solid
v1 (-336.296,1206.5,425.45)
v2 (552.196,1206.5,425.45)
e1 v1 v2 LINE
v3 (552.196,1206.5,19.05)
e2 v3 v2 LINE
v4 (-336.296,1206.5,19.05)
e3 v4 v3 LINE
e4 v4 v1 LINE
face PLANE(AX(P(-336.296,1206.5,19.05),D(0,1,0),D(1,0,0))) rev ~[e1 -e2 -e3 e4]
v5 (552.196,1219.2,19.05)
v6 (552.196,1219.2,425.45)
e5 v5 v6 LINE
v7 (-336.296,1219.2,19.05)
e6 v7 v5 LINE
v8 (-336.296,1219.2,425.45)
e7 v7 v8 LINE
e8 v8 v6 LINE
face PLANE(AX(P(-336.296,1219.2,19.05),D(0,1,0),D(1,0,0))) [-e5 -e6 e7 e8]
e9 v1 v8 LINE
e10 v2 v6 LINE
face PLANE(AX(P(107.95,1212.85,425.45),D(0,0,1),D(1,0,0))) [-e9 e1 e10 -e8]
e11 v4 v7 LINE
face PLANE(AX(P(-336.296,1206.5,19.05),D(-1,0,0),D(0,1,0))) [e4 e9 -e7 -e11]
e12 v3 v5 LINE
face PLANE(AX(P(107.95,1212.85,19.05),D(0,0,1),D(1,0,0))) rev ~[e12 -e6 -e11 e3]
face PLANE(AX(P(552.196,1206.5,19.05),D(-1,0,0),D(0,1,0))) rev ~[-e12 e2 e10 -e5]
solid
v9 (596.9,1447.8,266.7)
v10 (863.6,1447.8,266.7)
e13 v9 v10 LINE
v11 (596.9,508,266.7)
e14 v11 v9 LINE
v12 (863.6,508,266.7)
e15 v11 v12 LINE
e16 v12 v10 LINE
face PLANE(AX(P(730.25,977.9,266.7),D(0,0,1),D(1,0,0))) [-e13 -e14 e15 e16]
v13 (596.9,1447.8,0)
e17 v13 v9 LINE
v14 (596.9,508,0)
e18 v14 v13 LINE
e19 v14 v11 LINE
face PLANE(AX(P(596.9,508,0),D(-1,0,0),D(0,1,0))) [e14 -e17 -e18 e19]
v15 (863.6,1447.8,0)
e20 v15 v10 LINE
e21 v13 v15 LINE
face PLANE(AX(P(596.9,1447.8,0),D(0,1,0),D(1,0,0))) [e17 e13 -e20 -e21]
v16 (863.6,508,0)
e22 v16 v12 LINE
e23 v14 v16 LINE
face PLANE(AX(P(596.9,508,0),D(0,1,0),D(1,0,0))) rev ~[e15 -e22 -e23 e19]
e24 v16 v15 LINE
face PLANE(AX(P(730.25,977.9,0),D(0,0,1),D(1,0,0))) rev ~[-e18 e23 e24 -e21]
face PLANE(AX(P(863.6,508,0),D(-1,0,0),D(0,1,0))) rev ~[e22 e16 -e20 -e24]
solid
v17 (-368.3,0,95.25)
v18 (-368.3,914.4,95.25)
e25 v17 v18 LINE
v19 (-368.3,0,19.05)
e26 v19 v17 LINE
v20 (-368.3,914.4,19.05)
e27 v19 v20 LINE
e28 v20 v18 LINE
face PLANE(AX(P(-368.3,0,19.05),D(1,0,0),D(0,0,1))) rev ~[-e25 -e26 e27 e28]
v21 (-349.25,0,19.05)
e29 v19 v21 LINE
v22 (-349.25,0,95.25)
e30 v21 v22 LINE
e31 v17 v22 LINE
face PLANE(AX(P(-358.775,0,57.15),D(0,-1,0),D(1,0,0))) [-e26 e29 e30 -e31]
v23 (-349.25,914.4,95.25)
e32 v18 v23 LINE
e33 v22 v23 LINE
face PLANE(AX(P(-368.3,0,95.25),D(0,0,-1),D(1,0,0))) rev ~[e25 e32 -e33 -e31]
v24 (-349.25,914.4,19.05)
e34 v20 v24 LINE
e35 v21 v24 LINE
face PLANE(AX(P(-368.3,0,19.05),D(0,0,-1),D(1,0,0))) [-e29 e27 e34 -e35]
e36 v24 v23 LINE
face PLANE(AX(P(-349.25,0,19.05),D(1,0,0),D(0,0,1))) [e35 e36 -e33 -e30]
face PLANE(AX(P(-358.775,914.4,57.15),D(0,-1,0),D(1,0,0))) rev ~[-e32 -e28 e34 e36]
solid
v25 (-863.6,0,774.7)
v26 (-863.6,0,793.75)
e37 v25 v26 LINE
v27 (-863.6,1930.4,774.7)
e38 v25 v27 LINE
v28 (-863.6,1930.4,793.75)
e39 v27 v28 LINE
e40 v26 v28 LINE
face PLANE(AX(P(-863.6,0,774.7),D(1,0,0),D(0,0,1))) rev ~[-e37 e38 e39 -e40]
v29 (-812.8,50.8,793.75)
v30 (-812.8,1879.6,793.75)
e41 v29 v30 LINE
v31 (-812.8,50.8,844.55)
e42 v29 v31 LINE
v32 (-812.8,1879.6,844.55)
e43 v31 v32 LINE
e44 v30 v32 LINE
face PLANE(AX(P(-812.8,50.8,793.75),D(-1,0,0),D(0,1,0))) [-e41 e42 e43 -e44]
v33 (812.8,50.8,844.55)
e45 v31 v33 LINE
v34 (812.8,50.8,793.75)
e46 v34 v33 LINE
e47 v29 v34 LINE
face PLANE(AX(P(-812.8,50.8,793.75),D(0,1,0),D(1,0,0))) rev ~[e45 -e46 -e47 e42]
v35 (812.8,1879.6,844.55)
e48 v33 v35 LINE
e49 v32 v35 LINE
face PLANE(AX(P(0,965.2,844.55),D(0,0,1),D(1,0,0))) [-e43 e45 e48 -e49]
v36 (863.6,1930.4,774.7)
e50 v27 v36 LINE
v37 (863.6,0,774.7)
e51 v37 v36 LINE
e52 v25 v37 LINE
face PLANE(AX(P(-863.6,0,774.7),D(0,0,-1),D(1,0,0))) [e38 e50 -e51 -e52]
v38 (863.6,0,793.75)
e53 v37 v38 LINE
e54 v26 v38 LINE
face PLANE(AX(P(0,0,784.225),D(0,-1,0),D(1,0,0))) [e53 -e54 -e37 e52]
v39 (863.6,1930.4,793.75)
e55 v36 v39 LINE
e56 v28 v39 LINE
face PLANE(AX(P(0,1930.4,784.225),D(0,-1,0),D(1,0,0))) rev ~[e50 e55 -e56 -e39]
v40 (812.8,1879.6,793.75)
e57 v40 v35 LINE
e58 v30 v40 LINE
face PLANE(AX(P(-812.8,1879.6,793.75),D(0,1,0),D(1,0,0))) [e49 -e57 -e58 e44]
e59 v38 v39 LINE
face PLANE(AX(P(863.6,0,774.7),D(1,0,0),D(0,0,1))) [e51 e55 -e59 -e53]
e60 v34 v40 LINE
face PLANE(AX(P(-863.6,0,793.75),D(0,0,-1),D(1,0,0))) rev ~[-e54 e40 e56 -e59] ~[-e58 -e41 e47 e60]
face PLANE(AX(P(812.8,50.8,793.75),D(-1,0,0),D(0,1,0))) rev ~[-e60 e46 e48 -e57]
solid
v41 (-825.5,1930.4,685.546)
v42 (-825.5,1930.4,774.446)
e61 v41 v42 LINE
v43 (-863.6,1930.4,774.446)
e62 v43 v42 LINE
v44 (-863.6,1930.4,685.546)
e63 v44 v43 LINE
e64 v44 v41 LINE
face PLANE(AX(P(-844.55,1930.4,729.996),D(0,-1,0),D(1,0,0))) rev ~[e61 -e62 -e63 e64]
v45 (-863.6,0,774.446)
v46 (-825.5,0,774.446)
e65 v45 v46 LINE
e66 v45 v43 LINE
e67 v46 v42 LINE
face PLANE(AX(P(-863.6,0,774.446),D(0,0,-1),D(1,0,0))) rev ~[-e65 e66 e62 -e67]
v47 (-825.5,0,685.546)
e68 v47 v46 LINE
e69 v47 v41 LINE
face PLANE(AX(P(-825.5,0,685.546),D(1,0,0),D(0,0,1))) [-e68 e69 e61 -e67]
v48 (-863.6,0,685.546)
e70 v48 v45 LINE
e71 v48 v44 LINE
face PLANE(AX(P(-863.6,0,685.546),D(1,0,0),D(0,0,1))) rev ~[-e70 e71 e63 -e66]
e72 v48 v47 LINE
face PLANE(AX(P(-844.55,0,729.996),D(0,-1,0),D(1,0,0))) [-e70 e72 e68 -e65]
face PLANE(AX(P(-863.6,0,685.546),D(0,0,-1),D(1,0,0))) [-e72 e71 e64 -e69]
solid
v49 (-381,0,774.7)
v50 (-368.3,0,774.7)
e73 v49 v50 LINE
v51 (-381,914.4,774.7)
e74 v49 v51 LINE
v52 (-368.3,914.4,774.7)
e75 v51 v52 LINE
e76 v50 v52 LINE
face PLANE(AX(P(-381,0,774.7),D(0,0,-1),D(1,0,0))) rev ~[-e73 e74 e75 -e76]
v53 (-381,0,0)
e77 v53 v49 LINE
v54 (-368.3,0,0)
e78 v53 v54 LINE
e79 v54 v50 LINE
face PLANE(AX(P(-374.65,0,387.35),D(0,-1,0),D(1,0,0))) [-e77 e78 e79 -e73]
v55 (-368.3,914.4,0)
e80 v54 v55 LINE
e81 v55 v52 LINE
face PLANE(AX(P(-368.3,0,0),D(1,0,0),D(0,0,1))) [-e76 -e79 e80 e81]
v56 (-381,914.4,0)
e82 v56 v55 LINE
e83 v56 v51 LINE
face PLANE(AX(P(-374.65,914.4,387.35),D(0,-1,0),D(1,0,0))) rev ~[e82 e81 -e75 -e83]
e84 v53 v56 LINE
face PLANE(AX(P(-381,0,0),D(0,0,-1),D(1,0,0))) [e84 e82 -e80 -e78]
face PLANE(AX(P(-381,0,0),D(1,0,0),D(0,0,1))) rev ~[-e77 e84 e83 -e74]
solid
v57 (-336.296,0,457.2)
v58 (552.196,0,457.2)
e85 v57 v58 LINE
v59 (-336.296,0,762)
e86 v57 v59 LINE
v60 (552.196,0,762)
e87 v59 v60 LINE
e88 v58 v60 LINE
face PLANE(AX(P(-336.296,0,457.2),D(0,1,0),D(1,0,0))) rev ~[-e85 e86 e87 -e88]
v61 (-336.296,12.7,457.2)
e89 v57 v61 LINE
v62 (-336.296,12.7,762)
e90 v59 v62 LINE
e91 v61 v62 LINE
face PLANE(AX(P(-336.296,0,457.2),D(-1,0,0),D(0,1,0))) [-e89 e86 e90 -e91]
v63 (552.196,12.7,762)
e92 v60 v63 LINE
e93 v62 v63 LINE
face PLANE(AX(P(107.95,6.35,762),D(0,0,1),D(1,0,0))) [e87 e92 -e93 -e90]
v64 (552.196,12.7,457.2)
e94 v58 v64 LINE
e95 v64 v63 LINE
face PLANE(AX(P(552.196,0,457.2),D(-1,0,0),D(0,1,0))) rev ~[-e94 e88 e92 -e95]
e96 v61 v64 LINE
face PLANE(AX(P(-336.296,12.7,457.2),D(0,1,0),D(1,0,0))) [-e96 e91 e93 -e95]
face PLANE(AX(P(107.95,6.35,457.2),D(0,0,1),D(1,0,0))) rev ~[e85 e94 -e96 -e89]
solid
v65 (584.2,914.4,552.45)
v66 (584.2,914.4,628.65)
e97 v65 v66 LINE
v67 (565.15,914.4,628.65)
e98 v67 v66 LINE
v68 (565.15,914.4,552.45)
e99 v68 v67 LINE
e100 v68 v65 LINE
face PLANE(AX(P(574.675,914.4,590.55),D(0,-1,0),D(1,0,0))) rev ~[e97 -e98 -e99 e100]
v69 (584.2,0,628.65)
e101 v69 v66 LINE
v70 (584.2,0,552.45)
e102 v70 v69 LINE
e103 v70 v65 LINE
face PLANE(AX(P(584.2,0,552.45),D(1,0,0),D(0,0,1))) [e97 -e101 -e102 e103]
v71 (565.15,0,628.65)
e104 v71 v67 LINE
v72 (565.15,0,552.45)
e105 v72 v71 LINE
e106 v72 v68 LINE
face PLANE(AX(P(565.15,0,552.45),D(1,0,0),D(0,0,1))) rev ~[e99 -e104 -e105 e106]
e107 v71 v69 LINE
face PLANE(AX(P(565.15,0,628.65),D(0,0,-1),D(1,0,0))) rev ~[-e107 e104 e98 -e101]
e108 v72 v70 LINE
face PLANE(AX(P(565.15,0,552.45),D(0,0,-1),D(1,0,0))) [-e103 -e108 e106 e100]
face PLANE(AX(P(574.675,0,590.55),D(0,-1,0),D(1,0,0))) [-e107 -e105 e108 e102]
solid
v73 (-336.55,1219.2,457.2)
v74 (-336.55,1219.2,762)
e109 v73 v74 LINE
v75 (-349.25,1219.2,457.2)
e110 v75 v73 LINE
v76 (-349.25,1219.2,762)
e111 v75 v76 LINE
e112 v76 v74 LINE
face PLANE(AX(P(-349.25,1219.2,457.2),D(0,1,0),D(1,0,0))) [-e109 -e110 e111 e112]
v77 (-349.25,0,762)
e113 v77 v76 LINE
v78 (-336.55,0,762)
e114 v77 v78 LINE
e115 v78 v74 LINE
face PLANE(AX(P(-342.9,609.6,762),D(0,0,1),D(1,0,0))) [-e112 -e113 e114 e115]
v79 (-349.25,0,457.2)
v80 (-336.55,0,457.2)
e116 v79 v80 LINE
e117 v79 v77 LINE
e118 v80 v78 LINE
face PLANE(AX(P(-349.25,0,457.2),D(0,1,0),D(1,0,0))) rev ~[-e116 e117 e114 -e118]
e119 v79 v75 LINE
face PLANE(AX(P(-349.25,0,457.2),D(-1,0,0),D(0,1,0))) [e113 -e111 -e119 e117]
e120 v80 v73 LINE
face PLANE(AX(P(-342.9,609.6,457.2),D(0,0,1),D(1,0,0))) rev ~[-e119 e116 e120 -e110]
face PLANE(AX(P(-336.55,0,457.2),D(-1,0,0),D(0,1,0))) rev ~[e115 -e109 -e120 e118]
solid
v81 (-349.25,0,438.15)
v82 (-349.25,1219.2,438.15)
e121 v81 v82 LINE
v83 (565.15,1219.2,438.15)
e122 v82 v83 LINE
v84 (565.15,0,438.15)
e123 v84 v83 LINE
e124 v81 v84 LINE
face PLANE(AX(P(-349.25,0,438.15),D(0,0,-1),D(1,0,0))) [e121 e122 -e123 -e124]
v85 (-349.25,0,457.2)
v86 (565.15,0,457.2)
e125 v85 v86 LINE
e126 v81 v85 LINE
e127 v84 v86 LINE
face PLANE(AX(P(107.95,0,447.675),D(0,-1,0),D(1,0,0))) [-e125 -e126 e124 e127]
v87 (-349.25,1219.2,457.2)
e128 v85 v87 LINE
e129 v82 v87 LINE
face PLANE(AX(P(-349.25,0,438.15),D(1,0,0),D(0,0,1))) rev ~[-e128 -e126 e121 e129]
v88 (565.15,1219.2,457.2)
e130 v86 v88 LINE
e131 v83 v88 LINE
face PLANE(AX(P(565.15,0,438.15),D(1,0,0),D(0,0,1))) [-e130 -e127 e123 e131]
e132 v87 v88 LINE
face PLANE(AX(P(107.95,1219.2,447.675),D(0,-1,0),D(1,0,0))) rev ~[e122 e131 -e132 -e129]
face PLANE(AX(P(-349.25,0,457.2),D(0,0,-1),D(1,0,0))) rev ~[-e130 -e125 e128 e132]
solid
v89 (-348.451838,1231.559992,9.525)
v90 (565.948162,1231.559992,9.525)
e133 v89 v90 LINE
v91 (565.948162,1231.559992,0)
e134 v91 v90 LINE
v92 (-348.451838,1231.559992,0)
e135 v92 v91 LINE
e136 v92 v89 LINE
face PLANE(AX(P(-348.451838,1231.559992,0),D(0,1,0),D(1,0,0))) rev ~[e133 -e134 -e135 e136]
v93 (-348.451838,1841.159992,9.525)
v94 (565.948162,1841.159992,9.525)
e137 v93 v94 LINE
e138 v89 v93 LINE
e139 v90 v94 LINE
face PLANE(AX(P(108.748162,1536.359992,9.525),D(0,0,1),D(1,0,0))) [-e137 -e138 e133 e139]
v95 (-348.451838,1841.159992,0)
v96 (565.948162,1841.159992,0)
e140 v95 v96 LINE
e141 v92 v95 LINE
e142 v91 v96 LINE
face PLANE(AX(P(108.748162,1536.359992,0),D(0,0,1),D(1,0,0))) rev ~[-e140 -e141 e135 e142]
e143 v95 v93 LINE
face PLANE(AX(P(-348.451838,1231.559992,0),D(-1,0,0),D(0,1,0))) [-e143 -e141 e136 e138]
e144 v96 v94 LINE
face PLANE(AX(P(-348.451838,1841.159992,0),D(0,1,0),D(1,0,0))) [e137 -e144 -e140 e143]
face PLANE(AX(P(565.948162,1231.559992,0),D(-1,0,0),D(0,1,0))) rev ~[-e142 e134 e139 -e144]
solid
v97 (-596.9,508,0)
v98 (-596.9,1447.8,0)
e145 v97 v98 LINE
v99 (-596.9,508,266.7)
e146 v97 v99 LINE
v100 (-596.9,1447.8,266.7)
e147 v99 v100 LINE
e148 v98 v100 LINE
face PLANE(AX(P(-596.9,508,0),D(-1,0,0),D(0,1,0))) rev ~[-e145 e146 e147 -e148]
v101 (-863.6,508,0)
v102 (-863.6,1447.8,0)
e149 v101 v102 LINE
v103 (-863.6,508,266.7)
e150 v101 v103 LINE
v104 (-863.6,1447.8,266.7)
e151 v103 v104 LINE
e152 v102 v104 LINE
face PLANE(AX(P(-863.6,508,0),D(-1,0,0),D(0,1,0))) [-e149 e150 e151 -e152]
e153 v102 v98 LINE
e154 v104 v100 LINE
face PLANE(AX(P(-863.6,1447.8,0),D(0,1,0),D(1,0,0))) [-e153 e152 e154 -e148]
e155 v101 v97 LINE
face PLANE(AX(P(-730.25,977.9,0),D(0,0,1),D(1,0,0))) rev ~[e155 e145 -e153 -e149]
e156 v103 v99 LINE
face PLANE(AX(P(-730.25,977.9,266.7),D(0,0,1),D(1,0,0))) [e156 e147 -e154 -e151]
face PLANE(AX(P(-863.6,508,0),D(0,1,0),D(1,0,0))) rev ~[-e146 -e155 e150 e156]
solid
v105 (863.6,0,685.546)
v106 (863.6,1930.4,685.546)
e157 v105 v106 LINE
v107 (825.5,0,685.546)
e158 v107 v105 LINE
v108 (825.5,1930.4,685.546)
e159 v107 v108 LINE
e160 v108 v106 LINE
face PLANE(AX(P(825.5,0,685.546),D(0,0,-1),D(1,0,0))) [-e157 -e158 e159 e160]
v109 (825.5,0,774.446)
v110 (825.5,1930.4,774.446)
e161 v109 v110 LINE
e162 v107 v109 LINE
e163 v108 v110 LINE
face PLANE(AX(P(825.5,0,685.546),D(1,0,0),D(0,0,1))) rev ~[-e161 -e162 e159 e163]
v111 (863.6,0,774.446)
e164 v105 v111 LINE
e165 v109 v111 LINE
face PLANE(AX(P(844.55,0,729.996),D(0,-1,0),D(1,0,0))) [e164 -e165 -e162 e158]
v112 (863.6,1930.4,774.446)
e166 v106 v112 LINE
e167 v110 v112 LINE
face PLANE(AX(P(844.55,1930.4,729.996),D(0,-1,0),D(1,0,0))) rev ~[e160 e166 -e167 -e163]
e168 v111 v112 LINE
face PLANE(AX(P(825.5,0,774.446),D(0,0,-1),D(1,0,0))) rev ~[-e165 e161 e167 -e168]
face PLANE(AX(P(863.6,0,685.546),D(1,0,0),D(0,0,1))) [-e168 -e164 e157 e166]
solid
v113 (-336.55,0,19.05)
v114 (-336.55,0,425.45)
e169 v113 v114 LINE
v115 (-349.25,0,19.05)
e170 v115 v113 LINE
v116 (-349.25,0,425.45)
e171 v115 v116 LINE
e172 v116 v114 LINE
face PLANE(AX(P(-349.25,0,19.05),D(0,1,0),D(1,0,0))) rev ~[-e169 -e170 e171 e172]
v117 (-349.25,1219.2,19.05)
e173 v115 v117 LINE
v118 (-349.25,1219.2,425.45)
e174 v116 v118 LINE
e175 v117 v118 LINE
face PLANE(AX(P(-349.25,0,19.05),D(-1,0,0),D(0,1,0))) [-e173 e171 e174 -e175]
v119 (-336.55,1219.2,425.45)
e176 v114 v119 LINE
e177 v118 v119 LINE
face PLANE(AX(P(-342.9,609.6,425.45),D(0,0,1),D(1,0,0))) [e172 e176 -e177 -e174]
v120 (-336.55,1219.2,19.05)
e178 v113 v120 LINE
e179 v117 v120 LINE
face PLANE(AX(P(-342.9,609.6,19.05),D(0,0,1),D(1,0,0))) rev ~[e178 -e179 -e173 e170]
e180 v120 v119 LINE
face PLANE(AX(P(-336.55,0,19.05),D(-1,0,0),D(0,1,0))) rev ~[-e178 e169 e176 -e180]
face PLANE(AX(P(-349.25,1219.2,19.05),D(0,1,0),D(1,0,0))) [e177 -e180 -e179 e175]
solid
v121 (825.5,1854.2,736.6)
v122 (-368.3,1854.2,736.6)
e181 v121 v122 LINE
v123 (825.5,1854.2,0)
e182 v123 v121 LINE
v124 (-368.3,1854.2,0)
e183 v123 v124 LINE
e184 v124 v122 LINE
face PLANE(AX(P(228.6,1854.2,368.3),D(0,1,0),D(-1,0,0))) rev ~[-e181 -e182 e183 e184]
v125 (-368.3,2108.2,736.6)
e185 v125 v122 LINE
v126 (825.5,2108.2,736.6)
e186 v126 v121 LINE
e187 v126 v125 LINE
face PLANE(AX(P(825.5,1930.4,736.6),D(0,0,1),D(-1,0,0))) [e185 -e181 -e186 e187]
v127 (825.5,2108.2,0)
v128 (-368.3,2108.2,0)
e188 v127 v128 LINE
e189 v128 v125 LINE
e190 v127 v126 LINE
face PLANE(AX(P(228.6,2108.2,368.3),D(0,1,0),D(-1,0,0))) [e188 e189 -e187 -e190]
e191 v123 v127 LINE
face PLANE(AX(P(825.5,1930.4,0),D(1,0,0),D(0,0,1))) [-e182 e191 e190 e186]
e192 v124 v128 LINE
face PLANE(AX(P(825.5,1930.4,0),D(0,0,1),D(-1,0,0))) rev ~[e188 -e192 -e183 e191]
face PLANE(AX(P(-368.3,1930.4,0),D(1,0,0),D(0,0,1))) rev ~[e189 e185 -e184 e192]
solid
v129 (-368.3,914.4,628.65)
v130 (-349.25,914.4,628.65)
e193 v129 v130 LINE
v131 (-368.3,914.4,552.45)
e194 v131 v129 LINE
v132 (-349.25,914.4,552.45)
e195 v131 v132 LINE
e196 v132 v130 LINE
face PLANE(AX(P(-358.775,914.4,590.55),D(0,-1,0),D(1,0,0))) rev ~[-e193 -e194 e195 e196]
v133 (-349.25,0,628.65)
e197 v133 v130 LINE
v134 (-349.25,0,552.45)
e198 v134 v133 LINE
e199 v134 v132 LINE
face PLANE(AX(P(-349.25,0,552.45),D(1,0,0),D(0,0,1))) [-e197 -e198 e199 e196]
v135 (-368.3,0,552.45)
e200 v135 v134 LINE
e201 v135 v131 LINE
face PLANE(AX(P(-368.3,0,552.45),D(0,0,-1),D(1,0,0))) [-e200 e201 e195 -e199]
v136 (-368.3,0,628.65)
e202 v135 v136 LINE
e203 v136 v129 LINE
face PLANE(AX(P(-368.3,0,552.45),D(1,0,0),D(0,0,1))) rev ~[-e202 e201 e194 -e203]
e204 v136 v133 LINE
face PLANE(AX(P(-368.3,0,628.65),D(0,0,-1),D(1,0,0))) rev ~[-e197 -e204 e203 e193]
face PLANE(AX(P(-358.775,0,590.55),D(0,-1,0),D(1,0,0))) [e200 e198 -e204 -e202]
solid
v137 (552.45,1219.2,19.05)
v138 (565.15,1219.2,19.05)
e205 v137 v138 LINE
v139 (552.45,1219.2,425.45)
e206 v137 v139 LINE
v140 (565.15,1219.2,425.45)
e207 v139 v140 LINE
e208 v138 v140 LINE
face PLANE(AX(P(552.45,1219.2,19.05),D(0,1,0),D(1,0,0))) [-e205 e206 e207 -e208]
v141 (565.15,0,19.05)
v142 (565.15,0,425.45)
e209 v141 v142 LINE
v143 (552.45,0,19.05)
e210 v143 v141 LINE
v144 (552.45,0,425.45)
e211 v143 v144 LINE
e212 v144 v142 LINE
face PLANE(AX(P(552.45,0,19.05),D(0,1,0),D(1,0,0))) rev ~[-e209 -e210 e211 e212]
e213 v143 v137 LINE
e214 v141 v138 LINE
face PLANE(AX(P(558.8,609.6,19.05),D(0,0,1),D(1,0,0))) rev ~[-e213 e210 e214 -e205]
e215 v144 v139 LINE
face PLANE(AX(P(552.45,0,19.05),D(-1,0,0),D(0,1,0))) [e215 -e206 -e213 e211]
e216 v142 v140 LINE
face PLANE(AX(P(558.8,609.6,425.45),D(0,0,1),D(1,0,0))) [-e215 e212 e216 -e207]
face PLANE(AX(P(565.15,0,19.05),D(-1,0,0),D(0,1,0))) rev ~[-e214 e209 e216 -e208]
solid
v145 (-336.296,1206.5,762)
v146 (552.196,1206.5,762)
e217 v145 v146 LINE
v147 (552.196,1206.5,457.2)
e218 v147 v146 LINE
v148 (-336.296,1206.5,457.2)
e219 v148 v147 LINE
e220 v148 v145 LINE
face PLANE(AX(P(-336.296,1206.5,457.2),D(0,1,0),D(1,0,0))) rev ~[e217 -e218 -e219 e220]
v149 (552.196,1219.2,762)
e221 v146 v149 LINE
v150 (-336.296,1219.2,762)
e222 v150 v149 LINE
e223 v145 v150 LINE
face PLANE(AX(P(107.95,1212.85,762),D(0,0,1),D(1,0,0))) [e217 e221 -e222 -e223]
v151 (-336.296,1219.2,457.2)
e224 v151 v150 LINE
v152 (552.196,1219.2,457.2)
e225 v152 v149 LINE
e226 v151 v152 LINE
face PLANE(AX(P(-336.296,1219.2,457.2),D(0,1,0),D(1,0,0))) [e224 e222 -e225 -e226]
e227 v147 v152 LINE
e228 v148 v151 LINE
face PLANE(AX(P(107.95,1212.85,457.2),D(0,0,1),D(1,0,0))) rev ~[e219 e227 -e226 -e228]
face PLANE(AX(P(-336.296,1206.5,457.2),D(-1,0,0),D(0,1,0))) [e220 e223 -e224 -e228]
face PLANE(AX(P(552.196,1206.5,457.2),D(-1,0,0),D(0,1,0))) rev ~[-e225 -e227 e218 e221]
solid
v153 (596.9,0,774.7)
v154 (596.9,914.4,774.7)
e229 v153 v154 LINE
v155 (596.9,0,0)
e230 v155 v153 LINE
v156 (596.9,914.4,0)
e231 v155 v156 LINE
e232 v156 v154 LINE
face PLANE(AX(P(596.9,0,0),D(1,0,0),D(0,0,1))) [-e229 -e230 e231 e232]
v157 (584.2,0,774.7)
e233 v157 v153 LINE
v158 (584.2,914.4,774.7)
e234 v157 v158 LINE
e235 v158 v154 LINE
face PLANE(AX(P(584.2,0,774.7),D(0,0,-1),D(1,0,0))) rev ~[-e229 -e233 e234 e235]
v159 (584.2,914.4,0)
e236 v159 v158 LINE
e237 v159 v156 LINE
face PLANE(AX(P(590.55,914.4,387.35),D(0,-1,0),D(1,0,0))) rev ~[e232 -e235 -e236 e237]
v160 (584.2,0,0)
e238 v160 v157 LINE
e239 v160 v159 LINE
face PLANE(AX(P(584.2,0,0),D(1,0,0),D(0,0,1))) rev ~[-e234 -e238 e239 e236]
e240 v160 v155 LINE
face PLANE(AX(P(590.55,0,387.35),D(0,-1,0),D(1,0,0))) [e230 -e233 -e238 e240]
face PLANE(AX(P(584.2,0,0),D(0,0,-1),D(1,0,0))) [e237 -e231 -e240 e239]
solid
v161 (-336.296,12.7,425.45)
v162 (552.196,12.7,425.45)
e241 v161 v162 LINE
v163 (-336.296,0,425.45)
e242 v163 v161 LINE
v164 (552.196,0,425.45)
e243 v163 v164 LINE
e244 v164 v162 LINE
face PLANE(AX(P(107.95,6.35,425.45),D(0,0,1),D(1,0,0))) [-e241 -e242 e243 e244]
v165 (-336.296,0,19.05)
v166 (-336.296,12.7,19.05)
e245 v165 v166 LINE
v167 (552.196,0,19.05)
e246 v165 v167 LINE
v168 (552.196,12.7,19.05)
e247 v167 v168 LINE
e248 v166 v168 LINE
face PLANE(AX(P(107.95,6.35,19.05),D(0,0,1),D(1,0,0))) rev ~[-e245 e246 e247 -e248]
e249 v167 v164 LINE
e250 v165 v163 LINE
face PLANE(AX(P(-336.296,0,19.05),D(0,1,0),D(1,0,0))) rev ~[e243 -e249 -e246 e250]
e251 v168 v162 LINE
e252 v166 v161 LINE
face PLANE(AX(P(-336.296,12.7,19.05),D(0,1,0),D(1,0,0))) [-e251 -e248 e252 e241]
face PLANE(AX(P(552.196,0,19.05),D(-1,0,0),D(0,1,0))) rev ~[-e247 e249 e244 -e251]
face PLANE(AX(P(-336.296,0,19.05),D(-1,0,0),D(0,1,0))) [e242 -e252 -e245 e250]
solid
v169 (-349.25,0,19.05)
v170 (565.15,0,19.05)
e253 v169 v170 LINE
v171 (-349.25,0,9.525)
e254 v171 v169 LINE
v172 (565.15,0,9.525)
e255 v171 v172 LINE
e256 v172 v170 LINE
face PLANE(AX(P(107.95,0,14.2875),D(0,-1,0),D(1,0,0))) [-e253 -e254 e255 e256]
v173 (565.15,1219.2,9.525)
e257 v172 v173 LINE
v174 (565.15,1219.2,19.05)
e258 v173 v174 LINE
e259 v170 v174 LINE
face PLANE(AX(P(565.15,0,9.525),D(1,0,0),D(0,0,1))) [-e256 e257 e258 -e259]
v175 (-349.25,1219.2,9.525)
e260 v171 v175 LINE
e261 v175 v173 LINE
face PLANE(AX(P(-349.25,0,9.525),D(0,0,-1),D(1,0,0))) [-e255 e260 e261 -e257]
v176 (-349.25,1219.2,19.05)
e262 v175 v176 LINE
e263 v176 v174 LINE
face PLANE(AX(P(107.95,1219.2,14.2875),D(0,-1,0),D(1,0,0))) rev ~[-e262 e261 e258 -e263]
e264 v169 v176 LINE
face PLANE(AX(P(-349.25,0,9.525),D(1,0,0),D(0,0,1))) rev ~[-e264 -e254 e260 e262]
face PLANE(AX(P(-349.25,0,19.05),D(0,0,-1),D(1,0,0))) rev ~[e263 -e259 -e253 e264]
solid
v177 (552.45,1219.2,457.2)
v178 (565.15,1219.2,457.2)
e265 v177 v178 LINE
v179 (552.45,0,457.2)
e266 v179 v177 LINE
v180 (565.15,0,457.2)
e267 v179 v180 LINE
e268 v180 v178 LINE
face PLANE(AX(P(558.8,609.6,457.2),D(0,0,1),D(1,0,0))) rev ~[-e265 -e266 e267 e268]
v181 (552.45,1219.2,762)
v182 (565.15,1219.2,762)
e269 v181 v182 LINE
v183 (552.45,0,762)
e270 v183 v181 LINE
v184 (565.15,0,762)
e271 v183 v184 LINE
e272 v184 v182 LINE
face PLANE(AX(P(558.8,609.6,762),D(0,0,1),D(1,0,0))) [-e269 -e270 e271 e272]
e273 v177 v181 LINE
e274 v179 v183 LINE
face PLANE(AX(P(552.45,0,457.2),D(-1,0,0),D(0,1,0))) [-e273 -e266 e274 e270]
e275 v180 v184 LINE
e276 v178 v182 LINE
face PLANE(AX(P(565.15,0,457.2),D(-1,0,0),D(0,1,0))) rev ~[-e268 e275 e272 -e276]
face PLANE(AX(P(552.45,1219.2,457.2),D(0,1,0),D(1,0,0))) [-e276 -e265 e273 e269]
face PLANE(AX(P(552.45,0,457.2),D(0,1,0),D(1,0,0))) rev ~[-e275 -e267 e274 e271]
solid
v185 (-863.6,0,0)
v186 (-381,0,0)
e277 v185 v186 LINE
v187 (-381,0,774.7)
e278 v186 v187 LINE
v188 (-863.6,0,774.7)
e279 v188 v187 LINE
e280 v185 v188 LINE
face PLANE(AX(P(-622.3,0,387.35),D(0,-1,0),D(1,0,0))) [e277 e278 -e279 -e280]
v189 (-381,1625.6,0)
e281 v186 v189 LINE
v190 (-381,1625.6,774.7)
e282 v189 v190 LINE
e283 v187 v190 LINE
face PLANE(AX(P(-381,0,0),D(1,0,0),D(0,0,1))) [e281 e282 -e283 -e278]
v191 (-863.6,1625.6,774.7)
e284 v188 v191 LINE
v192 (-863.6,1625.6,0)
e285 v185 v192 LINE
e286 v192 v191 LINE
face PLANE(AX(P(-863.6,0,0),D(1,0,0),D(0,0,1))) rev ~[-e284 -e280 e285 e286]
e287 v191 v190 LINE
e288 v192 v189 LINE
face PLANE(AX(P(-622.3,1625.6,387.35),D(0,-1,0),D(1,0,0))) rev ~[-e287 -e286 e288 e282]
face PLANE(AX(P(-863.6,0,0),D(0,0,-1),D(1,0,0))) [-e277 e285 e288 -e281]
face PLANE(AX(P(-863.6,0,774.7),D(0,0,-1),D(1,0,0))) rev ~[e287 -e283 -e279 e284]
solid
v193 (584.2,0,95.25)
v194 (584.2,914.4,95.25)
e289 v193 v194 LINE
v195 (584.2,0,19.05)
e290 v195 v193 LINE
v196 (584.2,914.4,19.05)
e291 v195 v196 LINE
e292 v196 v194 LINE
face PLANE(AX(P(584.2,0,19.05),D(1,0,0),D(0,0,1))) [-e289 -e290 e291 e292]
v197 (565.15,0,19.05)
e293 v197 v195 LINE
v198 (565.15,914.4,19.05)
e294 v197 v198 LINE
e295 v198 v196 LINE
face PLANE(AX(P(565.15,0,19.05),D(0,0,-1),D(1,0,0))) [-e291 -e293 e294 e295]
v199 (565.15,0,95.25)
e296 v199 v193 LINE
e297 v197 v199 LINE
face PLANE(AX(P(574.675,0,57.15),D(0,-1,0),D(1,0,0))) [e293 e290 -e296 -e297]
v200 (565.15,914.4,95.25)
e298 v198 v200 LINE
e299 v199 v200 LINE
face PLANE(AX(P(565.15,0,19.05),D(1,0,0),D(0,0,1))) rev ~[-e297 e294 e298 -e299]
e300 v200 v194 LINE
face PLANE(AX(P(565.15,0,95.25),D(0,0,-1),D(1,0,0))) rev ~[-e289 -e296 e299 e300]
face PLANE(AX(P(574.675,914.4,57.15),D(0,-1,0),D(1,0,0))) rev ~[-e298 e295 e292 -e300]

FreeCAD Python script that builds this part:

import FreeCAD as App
import Part
import Sketcher
Q = App.Units.Quantity


def add_polygon(sketch, points):
    """Adds a closed chain of lines whose ends are joined by coincident constraints."""
    first, n = sketch.GeometryCount, len(points)
    for a, b in zip(points, points[1:] + points[:1]):
        sketch.addGeometry(Part.LineSegment(App.Vector(*a, 0), App.Vector(*b, 0)), False)
    for i in range(n):
        sketch.addConstraint(Sketcher.Constraint("Coincident", first + i, 2, first + (i + 1) % n, 1))

doc = App.newDocument("Part")
body = doc.addObject("PartDesign::Body", "Body")

sketch1 = body.newObject("Sketcher::SketchObject", "Sketch")
sketch1.AttachmentSupport = (doc.getObject("XZ_Plane"), [""])
sketch1.MapMode = "FlatFace"
add_polygon(sketch1, [(-863.6, 793.75), (-863.6, 774.7), (863.6, 774.7), (863.6, 793.75)])
sketch1.addConstraint([
    Sketcher.Constraint("Vertical", 0),
    Sketcher.Constraint("Horizontal", 1),
    Sketcher.Constraint("Vertical", 2),
    Sketcher.Constraint("Horizontal", 3),
    Sketcher.Constraint("DistanceX", 1, 1, 1, 2, Q("68 in")),
    Sketcher.Constraint("DistanceX", 0, 2, -1, 1, Q("34 in")),
    Sketcher.Constraint("DistanceY", 0, 2, 0, 1, Q("0.75 in")),
    Sketcher.Constraint("DistanceY", -1, 1, 0, 2, Q("30.5 in")),
])
pad1 = body.newObject("PartDesign::Pad", "Pad")
pad1.Profile = sketch1
pad1.Length = Q("76 in")
pad1.Reversed = True

sketch2 = body.newObject("Sketcher::SketchObject", "Sketch001")
sketch2.AttachmentSupport = (doc.getObject("XY_Plane"), [""])
sketch2.MapMode = "FlatFace"
sketch2.AttachmentOffset = App.Placement(App.Vector(0, 0, 31.25 * 25.4), App.Rotation())
add_polygon(sketch2, [(-812.8, 1879.6), (-812.8, 50.8), (812.8, 50.8), (812.8, 1879.6)])
sketch2.addConstraint([
    Sketcher.Constraint("Vertical", 0),
    Sketcher.Constraint("Horizontal", 1),
    Sketcher.Constraint("Vertical", 2),
    Sketcher.Constraint("Horizontal", 3),
    Sketcher.Constraint("DistanceX", 1, 1, 1, 2, Q("64 in")),
    Sketcher.Constraint("DistanceY", 0, 2, 0, 1, Q("72 in")),
    Sketcher.Constraint("DistanceX", 0, 2, -1, 1, Q("32 in")),
    Sketcher.Constraint("DistanceY", -1, 1, 0, 2, Q("2 in")),
])
pad2 = body.newObject("PartDesign::Pad", "Pad001")
pad2.Profile = sketch2
pad2.Length = Q("2 in")
body2 = doc.addObject("PartDesign::Body", "Body001")

sketch3 = body2.newObject("Sketcher::SketchObject", "Sketch002")
sketch3.AttachmentSupport = (doc.getObject("XZ_Plane001"), [""])
sketch3.MapMode = "FlatFace"
add_polygon(sketch3, [(825.5, 774.446), (825.5, 685.546), (863.6, 685.546), (863.6, 774.446)])
sketch3.addConstraint([
    Sketcher.Constraint("Vertical", 0),
    Sketcher.Constraint("Horizontal", 1),
    Sketcher.Constraint("Vertical", 2),
    Sketcher.Constraint("Horizontal", 3),
    Sketcher.Constraint("DistanceX", 1, 1, 1, 2, Q("1.5 in")),
    Sketcher.Constraint("DistanceY", 0, 2, 0, 1, Q("3.5 in")),
    Sketcher.Constraint("DistanceX", -1, 1, 1, 2, Q("34 in")),
    Sketcher.Constraint("DistanceY", -1, 1, 0, 2, Q("26.99 in")),
])
pad3 = body2.newObject("PartDesign::Pad", "Pad002")
pad3.Profile = sketch3
pad3.Length = Q("76 in")
pad3.Reversed = True
body3 = doc.addObject("PartDesign::Body", "Body002")

sketch4 = body3.newObject("Sketcher::SketchObject", "Sketch003")
sketch4.AttachmentSupport = (doc.getObject("XZ_Plane002"), [""])
sketch4.MapMode = "FlatFace"
add_polygon(sketch4, [(-863.6, 774.446), (-863.6, 685.546), (-825.5, 685.546), (-825.5, 774.446)])
sketch4.addConstraint([
    Sketcher.Constraint("Vertical", 0),
    Sketcher.Constraint("Horizontal", 1),
    Sketcher.Constraint("Vertical", 2),
    Sketcher.Constraint("Horizontal", 3),
    Sketcher.Constraint("DistanceX", 1, 1, 1, 2, Q("1.5 in")),
    Sketcher.Constraint("DistanceY", 0, 2, 0, 1, Q("3.5 in")),
    Sketcher.Constraint("DistanceX", 0, 2, -1, 1, Q("34 in")),
    Sketcher.Constraint("DistanceY", -1, 1, 0, 2, Q("26.99 in")),
])
pad4 = body3.newObject("PartDesign::Pad", "Pad003")
pad4.Profile = sketch4
pad4.Length = Q("76 in")
pad4.Reversed = True
body4 = doc.addObject("PartDesign::Body", "Body003")

sketch5 = body4.newObject("Sketcher::SketchObject", "Sketch004")
sketch5.AttachmentSupport = (doc.getObject("XY_Plane003"), [""])
sketch5.MapMode = "FlatFace"
add_polygon(sketch5, [(596.9, 1447.8), (596.9, 508), (863.6, 508), (863.6, 1447.8)])
sketch5.addConstraint([
    Sketcher.Constraint("Vertical", 0),
    Sketcher.Constraint("Horizontal", 1),
    Sketcher.Constraint("Vertical", 2),
    Sketcher.Constraint("Horizontal", 3),
    Sketcher.Constraint("DistanceY", 0, 2, 0, 1, Q("37 in")),
    Sketcher.Constraint("DistanceX", 1, 1, 1, 2, Q("10.5 in")),
    Sketcher.Constraint("DistanceY", -1, 1, 0, 2, Q("20 in")),
    Sketcher.Constraint("DistanceX", -1, 1, 1, 2, Q("34 in")),
])
pad5 = body4.newObject("PartDesign::Pad", "Pad004")
pad5.Profile = sketch5
pad5.Length = Q("10.5 in")
body5 = doc.addObject("PartDesign::Body", "Body004")

sketch6 = body5.newObject("Sketcher::SketchObject", "Sketch005")
sketch6.AttachmentSupport = (doc.getObject("XY_Plane004"), [""])
sketch6.MapMode = "FlatFace"
add_polygon(sketch6, [(-863.6, 1447.8), (-863.6, 508), (-596.9, 508), (-596.9, 1447.8)])
sketch6.addConstraint([
    Sketcher.Constraint("Vertical", 0),
    Sketcher.Constraint("Horizontal", 1),
    Sketcher.Constraint("Vertical", 2),
    Sketcher.Constraint("Horizontal", 3),
    Sketcher.Constraint("DistanceY", 0, 2, 0, 1, Q("37 in")),
    Sketcher.Constraint("DistanceX", 1, 1, 1, 2, Q("10.5 in")),
    Sketcher.Constraint("DistanceX", 0, 2, -1, 1, Q("34 in")),
    Sketcher.Constraint("DistanceY", -1, 1, 0, 2, Q("20 in")),
])
pad6 = body5.newObject("PartDesign::Pad", "Pad005")
pad6.Profile = sketch6
pad6.Length = Q("10.5 in")
body6 = doc.addObject("PartDesign::Body", "Body005")

sketch7 = body6.newObject("Sketcher::SketchObject", "Sketch006")
sketch7.AttachmentSupport = (doc.getObject("XZ_Plane005"), [""])
sketch7.MapMode = "FlatFace"
add_polygon(sketch7, [(-381, 774.7), (-381, 0), (-368.3, 0), (-368.3, 774.7)])
sketch7.addConstraint([
    Sketcher.Constraint("Vertical", 0),
    Sketcher.Constraint("Horizontal", 1),
    Sketcher.Constraint("Vertical", 2),
    Sketcher.Constraint("Horizontal", 3),
    Sketcher.Constraint("PointOnObject", 0, 2, -1),
    Sketcher.Constraint("DistanceX", 1, 1, 1, 2, Q("0.5 in")),
    Sketcher.Constraint("DistanceY", 0, 2, 0, 1, Q("30.5 in")),
    Sketcher.Constraint("DistanceX", 0, 2, -1, 1, Q("15 in")),
])
pad7 = body6.newObject("PartDesign::Pad", "Pad006")
pad7.Profile = sketch7
pad7.Length = Q("36 in")
pad7.Reversed = True
body7 = doc.addObject("PartDesign::Body", "Body006")

sketch8 = body7.newObject("Sketcher::SketchObject", "Sketch007")
sketch8.AttachmentSupport = (doc.getObject("XZ_Plane006"), [""])
sketch8.MapMode = "FlatFace"
add_polygon(sketch8, [(584.2, 774.7), (584.2, 0), (596.9, 0), (596.9, 774.7)])
sketch8.addConstraint([
    Sketcher.Constraint("Vertical", 0),
    Sketcher.Constraint("Horizontal", 1),
    Sketcher.Constraint("Vertical", 2),
    Sketcher.Constraint("Horizontal", 3),
    Sketcher.Constraint("PointOnObject", 0, 2, -1),
    Sketcher.Constraint("DistanceX", 1, 1, 1, 2, Q("0.5 in")),
    Sketcher.Constraint("DistanceY", 0, 2, 0, 1, Q("30.5 in")),
    Sketcher.Constraint("DistanceX", -1, 1, 0, 2, Q("23 in")),
])
pad8 = body7.newObject("PartDesign::Pad", "Pad007")
pad8.Profile = sketch8
pad8.Length = Q("36 in")
pad8.Reversed = True
body8 = doc.addObject("PartDesign::Body", "Body007")

sketch9 = body8.newObject("Sketcher::SketchObject", "Sketch008")
sketch9.AttachmentSupport = (doc.getObject("XZ_Plane007"), [""])
sketch9.MapMode = "FlatFace"
add_polygon(sketch9, [(-368.3, 95.25), (-368.3, 19.05), (-349.25, 19.05), (-349.25, 95.25)])
sketch9.addConstraint([
    Sketcher.Constraint("Vertical", 0),
    Sketcher.Constraint("Horizontal", 1),
    Sketcher.Constraint("Vertical", 2),
    Sketcher.Constraint("Horizontal", 3),
    Sketcher.Constraint("DistanceY", 0, 2, 0, 1, Q("3 in")),
    Sketcher.Constraint("DistanceX", 1, 1, 1, 2, Q("0.75 in")),
    Sketcher.Constraint("DistanceX", 0, 2, -1, 1, Q("14.5 in")),
    Sketcher.Constraint("DistanceY", -1, 1, 0, 2, Q("0.75 in")),
])
pad9 = body8.newObject("PartDesign::Pad", "Pad008")
pad9.Profile = sketch9
pad9.Length = Q("36 in")
pad9.Reversed = True
body9 = doc.addObject("PartDesign::Body", "Body008")

sketch10 = body9.newObject("Sketcher::SketchObject", "Sketch009")
sketch10.AttachmentSupport = (doc.getObject("XZ_Plane008"), [""])
sketch10.MapMode = "FlatFace"
add_polygon(sketch10, [(565.15, 95.25), (565.15, 19.05), (584.2, 19.05), (584.2, 95.25)])
sketch10.addConstraint([
    Sketcher.Constraint("Vertical", 0),
    Sketcher.Constraint("Horizontal", 1),
    Sketcher.Constraint("Vertical", 2),
    Sketcher.Constraint("Horizontal", 3),
    Sketcher.Constraint("DistanceY", 0, 2, 0, 1, Q("3 in")),
    Sketcher.Constraint("DistanceX", -1, 1, 1, 2, Q("23 in")),
    Sketcher.Constraint("DistanceX", 1, 1, 1, 2, Q("0.75 in")),
    Sketcher.Constraint("DistanceY", -1, 1, 0, 2, Q("0.75 in")),
])
pad10 = body9.newObject("PartDesign::Pad", "Pad009")
pad10.Profile = sketch10
pad10.Length = Q("36 in")
pad10.Reversed = True
body10 = doc.addObject("PartDesign::Body", "Body009")

sketch11 = body10.newObject("Sketcher::SketchObject", "Sketch010")
sketch11.AttachmentSupport = (doc.getObject("XZ_Plane009"), [""])
sketch11.MapMode = "FlatFace"
add_polygon(sketch11, [(-368.3, 628.65), (-368.3, 552.45), (-349.25, 552.45), (-349.25, 628.65)])
sketch11.addConstraint([
    Sketcher.Constraint("Vertical", 0),
    Sketcher.Constraint("Horizontal", 1),
    Sketcher.Constraint("Vertical", 2),
    Sketcher.Constraint("Horizontal", 3),
    Sketcher.Constraint("DistanceY", 0, 2, 0, 1, Q("3 in")),
    Sketcher.Constraint("DistanceX", 1, 1, 1, 2, Q("0.75 in")),
    Sketcher.Constraint("DistanceX", 0, 2, -1, 1, Q("14.5 in")),
    Sketcher.Constraint("DistanceY", -1, 1, 0, 2, Q("21.75 in")),
])
pad11 = body10.newObject("PartDesign::Pad", "Pad010")
pad11.Profile = sketch11
pad11.Length = Q("36 in")
pad11.Reversed = True
body11 = doc.addObject("PartDesign::Body", "Body010")

sketch12 = body11.newObject("Sketcher::SketchObject", "Sketch011")
sketch12.AttachmentSupport = (doc.getObject("XZ_Plane010"), [""])
sketch12.MapMode = "FlatFace"
add_polygon(sketch12, [(565.15, 628.65), (565.15, 552.45), (584.2, 552.45), (584.2, 628.65)])
sketch12.addConstraint([
    Sketcher.Constraint("Vertical", 0),
    Sketcher.Constraint("Horizontal", 1),
    Sketcher.Constraint("Vertical", 2),
    Sketcher.Constraint("Horizontal", 3),
    Sketcher.Constraint("DistanceY", 0, 2, 0, 1, Q("3 in")),
    Sketcher.Constraint("DistanceX", -1, 1, 1, 2, Q("23 in")),
    Sketcher.Constraint("DistanceX", 1, 1, 1, 2, Q("0.75 in")),
    Sketcher.Constraint("DistanceY", -1, 1, 0, 2, Q("21.75 in")),
])
pad12 = body11.newObject("PartDesign::Pad", "Pad011")
pad12.Profile = sketch12
pad12.Length = Q("36 in")
pad12.Reversed = True
body12 = doc.addObject("PartDesign::Body", "Body011")

sketch13 = body12.newObject("Sketcher::SketchObject", "Sketch012")
sketch13.AttachmentSupport = (doc.getObject("XZ_Plane011"), [""])
sketch13.MapMode = "FlatFace"
add_polygon(sketch13, [(-349.25, 19.05), (-349.25, 9.525), (565.15, 9.525), (565.15, 19.05)])
sketch13.addConstraint([
    Sketcher.Constraint("Vertical", 0),
    Sketcher.Constraint("Horizontal", 1),
    Sketcher.Constraint("Vertical", 2),
    Sketcher.Constraint("Horizontal", 3),
    Sketcher.Constraint("DistanceX", 1, 1, 1, 2, Q("36 in")),
    Sketcher.Constraint("DistanceY", 0, 2, 0, 1, Q("0.375 in")),
    Sketcher.Constraint("DistanceX", 0, 2, -1, 1, Q("13.75 in")),
    Sketcher.Constraint("DistanceY", -1, 1, 2, 2, Q("0.75 in")),
])
pad13 = body12.newObject("PartDesign::Pad", "Pad012")
pad13.Profile = sketch13
pad13.Length = Q("48 in")
pad13.Reversed = True
body13 = doc.addObject("PartDesign::Body", "Body012")

sketch14 = body13.newObject("Sketcher::SketchObject", "Sketch013")
sketch14.AttachmentSupport = (doc.getObject("XY_Plane012"), [""])
sketch14.MapMode = "FlatFace"
sketch14.AttachmentOffset = App.Placement(App.Vector(0, 0, 0.75 * 25.4), App.Rotation())
add_polygon(sketch14, [(-349.25, 1219.2), (-349.25, 0), (-336.55, 0), (-336.55, 1219.2)])
sketch14.addConstraint([
    Sketcher.Constraint("Vertical", 0),
    Sketcher.Constraint("Horizontal", 1),
    Sketcher.Constraint("Vertical", 2),
    Sketcher.Constraint("Horizontal", 3),
    Sketcher.Constraint("PointOnObject", 0, 2, -1),
    Sketcher.Constraint("DistanceY", 0, 2, 0, 1, Q("48 in")),
    Sketcher.Constraint("DistanceX", 1, 1, 1, 2, Q("0.5 in")),
    Sketcher.Constraint("DistanceX", 0, 2, -1, 1, Q("13.75 in")),
])
pad14 = body13.newObject("PartDesign::Pad", "Pad013")
pad14.Profile = sketch14
pad14.Length = Q("16 in")
body14 = doc.addObject("PartDesign::Body", "Body013")

sketch15 = body14.newObject("Sketcher::SketchObject", "Sketch014")
sketch15.AttachmentSupport = (doc.getObject("XY_Plane013"), [""])
sketch15.MapMode = "FlatFace"
sketch15.AttachmentOffset = App.Placement(App.Vector(0, 0, 0.75 * 25.4), App.Rotation())
add_polygon(sketch15, [(552.45, 1219.2), (552.45, 0), (565.15, 0), (565.15, 1219.2)])
sketch15.addConstraint([
    Sketcher.Constraint("Vertical", 0),
    Sketcher.Constraint("Horizontal", 1),
    Sketcher.Constraint("Vertical", 2),
    Sketcher.Constraint("Horizontal", 3),
    Sketcher.Constraint("PointOnObject", 0, 2, -1),
    Sketcher.Constraint("DistanceY", 0, 2, 0, 1, Q("48 in")),
    Sketcher.Constraint("DistanceX", 1, 1, 1, 2, Q("0.5 in")),
    Sketcher.Constraint("DistanceX", -1, 1, 0, 2, Q("21.75 in")),
])
pad15 = body14.newObject("PartDesign::Pad", "Pad014")
pad15.Profile = sketch15
pad15.Length = Q("16 in")
body15 = doc.addObject("PartDesign::Body", "Body014")

sketch16 = body15.newObject("Sketcher::SketchObject", "Sketch015")
sketch16.AttachmentSupport = (doc.getObject("XY_Plane014"), [""])
sketch16.MapMode = "FlatFace"
sketch16.AttachmentOffset = App.Placement(App.Vector(0, 0, 0.75 * 25.4), App.Rotation())
add_polygon(sketch16, [(-336.296, 1219.2), (-336.296, 1206.5), (552.196, 1206.5), (552.196, 1219.2)])
sketch16.addConstraint([
    Sketcher.Constraint("Vertical", 0),
    Sketcher.Constraint("Horizontal", 1),
    Sketcher.Constraint("Vertical", 2),
    Sketcher.Constraint("Horizontal", 3),
    Sketcher.Constraint("DistanceY", 0, 2, 0, 1, Q("0.5 in")),
    Sketcher.Constraint("DistanceY", -1, 1, 2, 2, Q("48 in")),
    Sketcher.Constraint("DistanceX", 1, 1, 1, 2, Q("34.98 in")),
    Sketcher.Constraint("DistanceX", 0, 2, -1, 1, Q("13.24 in")),
])
pad16 = body15.newObject("PartDesign::Pad", "Pad015")
pad16.Profile = sketch16
pad16.Length = Q("16 in")
body16 = doc.addObject("PartDesign::Body", "Body015")

sketch17 = body16.newObject("Sketcher::SketchObject", "Sketch016")
sketch17.AttachmentSupport = (doc.getObject("XY_Plane015"), [""])
sketch17.MapMode = "FlatFace"
sketch17.AttachmentOffset = App.Placement(App.Vector(0, 0, 0.75 * 25.4), App.Rotation())
add_polygon(sketch17, [(-336.296, 12.7), (-336.296, 0), (552.196, 0), (552.196, 12.7)])
sketch17.addConstraint([
    Sketcher.Constraint("Vertical", 0),
    Sketcher.Constraint("Horizontal", 1),
    Sketcher.Constraint("Vertical", 2),
    Sketcher.Constraint("Horizontal", 3),
    Sketcher.Constraint("PointOnObject", 0, 2, -1),
    Sketcher.Constraint("DistanceY", 0, 2, 0, 1, Q("0.5 in")),
    Sketcher.Constraint("DistanceX", 1, 1, 1, 2, Q("34.98 in")),
    Sketcher.Constraint("DistanceX", 0, 2, -1, 1, Q("13.24 in")),
])
pad17 = body16.newObject("PartDesign::Pad", "Pad016")
pad17.Profile = sketch17
pad17.Length = Q("16 in")
body17 = doc.addObject("PartDesign::Body", "Body016")

sketch18 = body17.newObject("Sketcher::SketchObject", "Sketch017")
sketch18.AttachmentSupport = (doc.getObject("XZ_Plane016"), [""])
sketch18.MapMode = "FlatFace"
sketch18.AttachmentOffset = App.Placement(App.Vector(0, 0, -76 * 25.4), App.Rotation())
add_polygon(sketch18, [(825.5, 736.6), (825.5, 0), (-368.3, 0), (-368.3, 736.6)])
sketch18.addConstraint([
    Sketcher.Constraint("Vertical", 0),
    Sketcher.Constraint("Horizontal", 1),
    Sketcher.Constraint("Vertical", 2),
    Sketcher.Constraint("Horizontal", 3),
    Sketcher.Constraint("PointOnObject", 0, 2, -1),
    Sketcher.Constraint("DistanceX", 1, 2, 1, 1, Q("47 in")),
    Sketcher.Constraint("DistanceY", 0, 2, 0, 1, Q("29 in")),
    Sketcher.Constraint("DistanceX", -1, 1, 0, 2, Q("32.5 in")),
])
pad18 = body17.newObject("PartDesign::Pad", "Pad017")
pad18.Profile = sketch18
pad18.Type = "TwoLengths"
pad18.Length = Q("3 in")
pad18.Length2 = Q("7 in")
body18 = doc.addObject("PartDesign::Body", "Body017")

sketch19 = body18.newObject("Sketcher::SketchObject", "Sketch018")
sketch19.AttachmentSupport = (doc.getObject("XZ_Plane017"), [""])
sketch19.MapMode = "FlatFace"
add_polygon(sketch19, [(-863.6, 774.7), (-863.6, 0), (-381, 0), (-381, 774.7)])
sketch19.addConstraint([
    Sketcher.Constraint("Vertical", 0),
    Sketcher.Constraint("Horizontal", 1),
    Sketcher.Constraint("Vertical", 2),
    Sketcher.Constraint("Horizontal", 3),
    Sketcher.Constraint("PointOnObject", 0, 2, -1),
    Sketcher.Constraint("DistanceX", 1, 1, 1, 2, Q("19 in")),
    Sketcher.Constraint("DistanceY", 0, 2, 0, 1, Q("30.5 in")),
    Sketcher.Constraint("DistanceX", 0, 2, -1, 1, Q("34 in")),
])
pad19 = body18.newObject("PartDesign::Pad", "Pad018")
pad19.Profile = sketch19
pad19.Length = Q("64 in")
pad19.Reversed = True
body19 = doc.addObject("PartDesign::Body", "Body018")

sketch20 = body19.newObject("Sketcher::SketchObject", "Sketch019")
sketch20.AttachmentSupport = (doc.getObject("XY_Plane018"), [""])
sketch20.MapMode = "FlatFace"
add_polygon(sketch20, [(-348.451838, 1841.159992), (-348.451838, 1231.559992), (565.948162, 1231.559992), (565.948162, 1841.159992)])
sketch20.addConstraint([
    Sketcher.Constraint("Vertical", 0),
    Sketcher.Constraint("Horizontal", 1),
    Sketcher.Constraint("Vertical", 2),
    Sketcher.Constraint("Horizontal", 3),
    Sketcher.Constraint("DistanceX", 1, 1, 1, 2, Q("36 in")),
    Sketcher.Constraint("DistanceY", 0, 2, 0, 1, Q("24 in")),
    Sketcher.Constraint("DistanceY", -1, 1, 0, 2, 1231.559992),
    Sketcher.Constraint("DistanceX", 0, 2, -1, 1, 348.451838),
])
pad20 = body19.newObject("PartDesign::Pad", "Pad019")
pad20.Profile = sketch20
pad20.Length = Q("0.375 in")
body20 = doc.addObject("PartDesign::Body", "Body019")

sketch21 = body20.newObject("Sketcher::SketchObject", "Sketch020")
sketch21.AttachmentSupport = (doc.getObject("XZ_Plane019"), [""])
sketch21.MapMode = "FlatFace"
add_polygon(sketch21, [(-349.25, 457.2), (-349.25, 438.15), (565.15, 438.15), (565.15, 457.2)])
sketch21.addConstraint([
    Sketcher.Constraint("Vertical", 0),
    Sketcher.Constraint("Horizontal", 1),
    Sketcher.Constraint("Vertical", 2),
    Sketcher.Constraint("Horizontal", 3),
    Sketcher.Constraint("DistanceX", 1, 1, 1, 2, Q("36 in")),
    Sketcher.Constraint("DistanceY", -1, 1, 2, 2, Q("18 in")),
    Sketcher.Constraint("DistanceY", 0, 2, 0, 1, Q("0.75 in")),
    Sketcher.Constraint("DistanceX", 0, 2, -1, 1, Q("13.75 in")),
])
pad21 = body20.newObject("PartDesign::Pad", "Pad020")
pad21.Profile = sketch21
pad21.Length = Q("48 in")
pad21.Reversed = True
body21 = doc.addObject("PartDesign::Body", "Body020")

sketch22 = body21.newObject("Sketcher::SketchObject", "Sketch021")
sketch22.AttachmentSupport = (doc.getObject("XY_Plane020"), [""])
sketch22.MapMode = "FlatFace"
sketch22.AttachmentOffset = App.Placement(App.Vector(0, 0, 18 * 25.4), App.Rotation())
add_polygon(sketch22, [(-349.25, 1219.2), (-349.25, 0), (-336.55, 0), (-336.55, 1219.2)])
sketch22.addConstraint([
    Sketcher.Constraint("Vertical", 0),
    Sketcher.Constraint("Horizontal", 1),
    Sketcher.Constraint("Vertical", 2),
    Sketcher.Constraint("Horizontal", 3),
    Sketcher.Constraint("PointOnObject", 0, 2, -1),
    Sketcher.Constraint("DistanceY", 0, 2, 0, 1, Q("48 in")),
    Sketcher.Constraint("DistanceX", 1, 1, 1, 2, Q("0.5 in")),
    Sketcher.Constraint("DistanceX", 0, 2, -1, 1, Q("13.75 in")),
])
pad22 = body21.newObject("PartDesign::Pad", "Pad021")
pad22.Profile = sketch22
pad22.Length = Q("12 in")
body22 = doc.addObject("PartDesign::Body", "Body021")

sketch23 = body22.newObject("Sketcher::SketchObject", "Sketch022")
sketch23.AttachmentSupport = (doc.getObject("XY_Plane021"), [""])
sketch23.MapMode = "FlatFace"
sketch23.AttachmentOffset = App.Placement(App.Vector(0, 0, 18 * 25.4), App.Rotation())
add_polygon(sketch23, [(552.45, 1219.2), (552.45, 0), (565.15, 0), (565.15, 1219.2)])
sketch23.addConstraint([
    Sketcher.Constraint("Vertical", 0),
    Sketcher.Constraint("Horizontal", 1),
    Sketcher.Constraint("Vertical", 2),
    Sketcher.Constraint("Horizontal", 3),
    Sketcher.Constraint("PointOnObject", 0, 2, -1),
    Sketcher.Constraint("DistanceY", 0, 2, 0, 1, Q("48 in")),
    Sketcher.Constraint("DistanceX", 1, 1, 1, 2, Q("0.5 in")),
    Sketcher.Constraint("DistanceX", -1, 1, 0, 2, Q("21.75 in")),
])
pad23 = body22.newObject("PartDesign::Pad", "Pad022")
pad23.Profile = sketch23
pad23.Length = Q("12 in")
body23 = doc.addObject("PartDesign::Body", "Body022")

sketch24 = body23.newObject("Sketcher::SketchObject", "Sketch023")
sketch24.AttachmentSupport = (doc.getObject("XY_Plane022"), [""])
sketch24.MapMode = "FlatFace"
sketch24.AttachmentOffset = App.Placement(App.Vector(0, 0, 18 * 25.4), App.Rotation())
add_polygon(sketch24, [(-336.296, 12.7), (-336.296, 0), (552.196, 0), (552.196, 12.7)])
sketch24.addConstraint([
    Sketcher.Constraint("Vertical", 0),
    Sketcher.Constraint("Horizontal", 1),
    Sketcher.Constraint("Vertical", 2),
    Sketcher.Constraint("Horizontal", 3),
    Sketcher.Constraint("PointOnObject", 0, 2, -1),
    Sketcher.Constraint("DistanceY", 0, 2, 0, 1, Q("0.5 in")),
    Sketcher.Constraint("DistanceX", 1, 1, 1, 2, Q("34.98 in")),
    Sketcher.Constraint("DistanceX", 0, 2, -1, 1, Q("13.24 in")),
])
pad24 = body23.newObject("PartDesign::Pad", "Pad023")
pad24.Profile = sketch24
pad24.Length = Q("12 in")
body24 = doc.addObject("PartDesign::Body", "Body023")

sketch25 = body24.newObject("Sketcher::SketchObject", "Sketch024")
sketch25.AttachmentSupport = (doc.getObject("XY_Plane023"), [""])
sketch25.MapMode = "FlatFace"
sketch25.AttachmentOffset = App.Placement(App.Vector(0, 0, 18 * 25.4), App.Rotation())
add_polygon(sketch25, [(-336.296, 1219.2), (-336.296, 1206.5), (552.196, 1206.5), (552.196, 1219.2)])
sketch25.addConstraint([
    Sketcher.Constraint("Vertical", 0),
    Sketcher.Constraint("Horizontal", 1),
    Sketcher.Constraint("Vertical", 2),
    Sketcher.Constraint("Horizontal", 3),
    Sketcher.Constraint("DistanceY", 0, 2, 0, 1, Q("0.5 in")),
    Sketcher.Constraint("DistanceY", -1, 1, 2, 2, Q("48 in")),
    Sketcher.Constraint("DistanceX", 1, 1, 1, 2, Q("34.98 in")),
    Sketcher.Constraint("DistanceX", 0, 2, -1, 1, Q("13.24 in")),
])
pad25 = body24.newObject("PartDesign::Pad", "Pad024")
pad25.Profile = sketch25
pad25.Length = Q("12 in")

doc.recompute()
